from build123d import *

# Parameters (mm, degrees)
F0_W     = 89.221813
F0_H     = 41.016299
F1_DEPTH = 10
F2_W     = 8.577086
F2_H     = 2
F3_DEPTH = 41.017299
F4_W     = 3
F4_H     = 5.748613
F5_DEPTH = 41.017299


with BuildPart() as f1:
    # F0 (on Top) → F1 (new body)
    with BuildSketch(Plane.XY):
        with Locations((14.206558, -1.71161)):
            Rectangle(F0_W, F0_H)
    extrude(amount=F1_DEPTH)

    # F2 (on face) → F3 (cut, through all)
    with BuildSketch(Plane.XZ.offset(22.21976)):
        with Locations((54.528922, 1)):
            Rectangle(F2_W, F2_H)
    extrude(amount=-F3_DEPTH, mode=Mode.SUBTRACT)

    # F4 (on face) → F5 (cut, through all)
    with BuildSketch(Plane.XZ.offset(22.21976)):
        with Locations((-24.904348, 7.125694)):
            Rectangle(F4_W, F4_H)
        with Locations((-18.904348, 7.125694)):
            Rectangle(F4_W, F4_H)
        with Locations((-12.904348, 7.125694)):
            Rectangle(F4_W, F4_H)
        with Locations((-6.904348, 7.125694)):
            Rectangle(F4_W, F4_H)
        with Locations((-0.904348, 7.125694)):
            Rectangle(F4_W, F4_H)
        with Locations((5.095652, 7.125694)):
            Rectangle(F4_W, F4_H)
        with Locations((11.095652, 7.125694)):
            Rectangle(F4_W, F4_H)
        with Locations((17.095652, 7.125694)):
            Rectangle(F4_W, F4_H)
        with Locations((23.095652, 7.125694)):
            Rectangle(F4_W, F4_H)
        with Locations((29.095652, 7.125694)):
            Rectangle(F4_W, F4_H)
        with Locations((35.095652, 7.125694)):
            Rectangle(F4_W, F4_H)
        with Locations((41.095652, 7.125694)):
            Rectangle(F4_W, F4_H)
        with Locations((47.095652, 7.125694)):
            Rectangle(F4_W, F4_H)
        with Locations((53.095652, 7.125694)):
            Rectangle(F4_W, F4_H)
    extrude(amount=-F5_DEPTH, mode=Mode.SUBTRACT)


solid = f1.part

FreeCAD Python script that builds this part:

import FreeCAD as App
import Part
import Sketcher
from FreeCAD import Vector


def add_polygon(sketch, points):
    """Adds a closed chain of lines whose ends are joined by coincident constraints."""
    first, n = sketch.GeometryCount, len(points)
    for a, b in zip(points, points[1:] + points[:1]):
        sketch.addGeometry(Part.LineSegment(App.Vector(*a, 0), App.Vector(*b, 0)), False)
    for i in range(n):
        sketch.addConstraint(Sketcher.Constraint("Coincident", first + i, 2, first + (i + 1) % n, 1))

doc = App.newDocument("Part")
params = doc.addObject("Spreadsheet::Sheet", "Params")
for row, (alias, value) in enumerate([
    ("pad1_length", "10 mm"),
    ("sketch2_height", "2 mm"),
    ("sketch3_width", "3 mm"),
], start=1):
    params.set(f"A{row}", alias)
    params.set(f"B{row}", "=" + value)
    params.setAlias(f"B{row}", alias)

body = doc.addObject("PartDesign::Body", "Body")

# Sketch on XY plane
sketch1 = body.newObject("Sketcher::SketchObject", "Sketch")
sketch1.AttachmentSupport = (doc.getObject("XY_Plane"), [""])
sketch1.MapMode = "FlatFace"
add_polygon(sketch1, [(-30, 19), (-30, -22), (59, -22), (59, 19)])  # lines 0-3
sketch1.addConstraint(Sketcher.Constraint("Vertical", 0))
sketch1.addConstraint(Sketcher.Constraint("Horizontal", 1))
sketch1.addConstraint(Sketcher.Constraint("Vertical", 2))
sketch1.addConstraint(Sketcher.Constraint("Horizontal", 3))
sketch1.addConstraint(Sketcher.Constraint("DistanceY", 0, 2, 0, 1, 41.016299))
sketch1.addConstraint(Sketcher.Constraint("DistanceX", 1, 1, 1, 2, 89.221813))
sketch1.addConstraint(Sketcher.Constraint("DistanceX", 0, 2, -1, 1, 30.404349))
sketch1.addConstraint(Sketcher.Constraint("DistanceY", 0, 2, -1, 1, 22.219759))
pad1 = body.newObject("PartDesign::Pad", "Pad")
pad1.Profile = sketch1
pad1.setExpression("Length", "Params.pad1_length")

# Sketch on XZ plane
sketch2 = body.newObject("Sketcher::SketchObject", "Sketch001")
sketch2.AttachmentSupport = (doc.getObject("XZ_Plane"), [""])
sketch2.MapMode = "FlatFace"
sketch2.AttachmentOffset = App.Placement(Vector(0, 0, 22.21976), App.Rotation())
add_polygon(sketch2, [(50.2, 2), (50.2, 0), (58.8, 0), (58.8, 2)])  # lines 0-3
sketch2.addConstraint(Sketcher.Constraint("Vertical", 0))
sketch2.addConstraint(Sketcher.Constraint("Horizontal", 1))
sketch2.addConstraint(Sketcher.Constraint("Vertical", 2))
sketch2.addConstraint(Sketcher.Constraint("Horizontal", 3))
sketch2.addConstraint(Sketcher.Constraint("PointOnObject", 0, 2, -1))
sketch2.addConstraint(Sketcher.Constraint("DistanceY", 0, 2, 0, 1, 2.0))
sketch2.addConstraint(Sketcher.Constraint("DistanceX", 1, 1, 1, 2, 8.577086))
sketch2.addConstraint(Sketcher.Constraint("DistanceX", -1, 1, 0, 2, 50.240379))
sketch2.setExpression("Constraints[9]", "Params.sketch2_height")
pocket1 = body.newObject("PartDesign::Pocket", "Pocket")
pocket1.Profile = sketch2
pocket1.Type = "ThroughAll"

# Sketch on XZ plane
sketch3 = body.newObject("Sketcher::SketchObject", "Sketch002")
sketch3.AttachmentSupport = (doc.getObject("XZ_Plane"), [""])
sketch3.MapMode = "FlatFace"
sketch3.AttachmentOffset = App.Placement(Vector(0, 0, 22.21976), App.Rotation())
add_polygon(sketch3, [(-26.4, 10), (-26.4, 4.3), (-23.4, 4.3), (-23.4, 10)])  # lines 0-3
add_polygon(sketch3, [(-20.4, 10), (-20.4, 4.3), (-17.4, 4.3), (-17.4, 10)])  # lines 4-7
add_polygon(sketch3, [(-14.4, 10), (-14.4, 4.3), (-11.4, 4.3), (-11.4, 10)])  # lines 8-11
add_polygon(sketch3, [(-8.4, 10), (-8.4, 4.3), (-5.4, 4.3), (-5.4, 10)])  # lines 12-15
add_polygon(sketch3, [(-2.4, 10), (-2.4, 4.3), (0.6, 4.3), (0.6, 10)])  # lines 16-19
add_polygon(sketch3, [(3.6, 10), (3.6, 4.3), (6.6, 4.3), (6.6, 10)])  # lines 20-23
add_polygon(sketch3, [(9.6, 10), (9.6, 4.3), (12.6, 4.3), (12.6, 10)])  # lines 24-27
add_polygon(sketch3, [(15.6, 10), (15.6, 4.3), (18.6, 4.3), (18.6, 10)])  # lines 28-31
add_polygon(sketch3, [(21.6, 10), (21.6, 4.3), (24.6, 4.3), (24.6, 10)])  # lines 32-35
add_polygon(sketch3, [(27.6, 10), (27.6, 4.3), (30.6, 4.3), (30.6, 10)])  # lines 36-39
add_polygon(sketch3, [(33.6, 10), (33.6, 4.3), (36.6, 4.3), (36.6, 10)])  # lines 40-43
add_polygon(sketch3, [(39.6, 10), (39.6, 4.3), (42.6, 4.3), (42.6, 10)])  # lines 44-47
add_polygon(sketch3, [(45.6, 10), (45.6, 4.3), (48.6, 4.3), (48.6, 10)])  # lines 48-51
add_polygon(sketch3, [(51.6, 10), (51.6, 4.3), (54.6, 4.3), (54.6, 10)])  # lines 52-55
sketch3.addConstraint(Sketcher.Constraint("Vertical", 0))
sketch3.addConstraint(Sketcher.Constraint("Horizontal", 1))
sketch3.addConstraint(Sketcher.Constraint("Vertical", 2))
sketch3.addConstraint(Sketcher.Constraint("Horizontal", 3))
sketch3.addConstraint(Sketcher.Constraint("Vertical", 4))
sketch3.addConstraint(Sketcher.Constraint("Horizontal", 5))
sketch3.addConstraint(Sketcher.Constraint("Vertical", 6))
sketch3.addConstraint(Sketcher.Constraint("Horizontal", 7))
sketch3.addConstraint(Sketcher.Constraint("Vertical", 8))
sketch3.addConstraint(Sketcher.Constraint("Horizontal", 9))
sketch3.addConstraint(Sketcher.Constraint("Vertical", 10))
sketch3.addConstraint(Sketcher.Constraint("Horizontal", 11))
sketch3.addConstraint(Sketcher.Constraint("Vertical", 12))
sketch3.addConstraint(Sketcher.Constraint("Horizontal", 13))
sketch3.addConstraint(Sketcher.Constraint("Vertical", 14))
sketch3.addConstraint(Sketcher.Constraint("Horizontal", 15))
sketch3.addConstraint(Sketcher.Constraint("Vertical", 16))
sketch3.addConstraint(Sketcher.Constraint("Horizontal", 17))
sketch3.addConstraint(Sketcher.Constraint("Vertical", 18))
sketch3.addConstraint(Sketcher.Constraint("Horizontal", 19))
sketch3.addConstraint(Sketcher.Constraint("Vertical", 20))
sketch3.addConstraint(Sketcher.Constraint("Horizontal", 21))
sketch3.addConstraint(Sketcher.Constraint("Vertical", 22))
sketch3.addConstraint(Sketcher.Constraint("Horizontal", 23))
sketch3.addConstraint(Sketcher.Constraint("Vertical", 24))
sketch3.addConstraint(Sketcher.Constraint("Horizontal", 25))
sketch3.addConstraint(Sketcher.Constraint("Vertical", 26))
sketch3.addConstraint(Sketcher.Constraint("Horizontal", 27))
sketch3.addConstraint(Sketcher.Constraint("Vertical", 28))
sketch3.addConstraint(Sketcher.Constraint("Horizontal", 29))
sketch3.addConstraint(Sketcher.Constraint("Vertical", 30))
sketch3.addConstraint(Sketcher.Constraint("Horizontal", 31))
sketch3.addConstraint(Sketcher.Constraint("Vertical", 32))
sketch3.addConstraint(Sketcher.Constraint("Horizontal", 33))
sketch3.addConstraint(Sketcher.Constraint("Vertical", 34))
sketch3.addConstraint(Sketcher.Constraint("Horizontal", 35))
sketch3.addConstraint(Sketcher.Constraint("Vertical", 36))
sketch3.addConstraint(Sketcher.Constraint("Horizontal", 37))
sketch3.addConstraint(Sketcher.Constraint("Vertical", 38))
sketch3.addConstraint(Sketcher.Constraint("Horizontal", 39))
sketch3.addConstraint(Sketcher.Constraint("Vertical", 40))
sketch3.addConstraint(Sketcher.Constraint("Horizontal", 41))
sketch3.addConstraint(Sketcher.Constraint("Vertical", 42))
sketch3.addConstraint(Sketcher.Constraint("Horizontal", 43))
sketch3.addConstraint(Sketcher.Constraint("Vertical", 44))
sketch3.addConstraint(Sketcher.Constraint("Horizontal", 45))
sketch3.addConstraint(Sketcher.Constraint("Vertical", 46))
sketch3.addConstraint(Sketcher.Constraint("Horizontal", 47))
sketch3.addConstraint(Sketcher.Constraint("Vertical", 48))
sketch3.addConstraint(Sketcher.Constraint("Horizontal", 49))
sketch3.addConstraint(Sketcher.Constraint("Vertical", 50))
sketch3.addConstraint(Sketcher.Constraint("Horizontal", 51))
sketch3.addConstraint(Sketcher.Constraint("Vertical", 52))
sketch3.addConstraint(Sketcher.Constraint("Horizontal", 53))
sketch3.addConstraint(Sketcher.Constraint("Vertical", 54))
sketch3.addConstraint(Sketcher.Constraint("Horizontal", 55))
sketch3.addConstraint(Sketcher.Constraint("Horizontal", 1, 2, 4, 2))
sketch3.addConstraint(Sketcher.Constraint("Horizontal", 3, 2, 6, 2))
sketch3.addConstraint(Sketcher.Constraint("Horizontal", 5, 2, 8, 2))
sketch3.addConstraint(Sketcher.Constraint("Horizontal", 7, 2, 10, 2))
sketch3.addConstraint(Sketcher.Constraint("Horizontal", 9, 2, 12, 2))
sketch3.addConstraint(Sketcher.Constraint("Horizontal", 11, 2, 14, 2))
sketch3.addConstraint(Sketcher.Constraint("Horizontal", 13, 2, 16, 2))
sketch3.addConstraint(Sketcher.Constraint("Horizontal", 15, 2, 18, 2))
sketch3.addConstraint(Sketcher.Constraint("Horizontal", 17, 2, 20, 2))
sketch3.addConstraint(Sketcher.Constraint("Horizontal", 19, 2, 22, 2))
sketch3.addConstraint(Sketcher.Constraint("Horizontal", 21, 2, 24, 2))
sketch3.addConstraint(Sketcher.Constraint("Horizontal", 23, 2, 26, 2))
sketch3.addConstraint(Sketcher.Constraint("Horizontal", 25, 2, 28, 2))
sketch3.addConstraint(Sketcher.Constraint("Horizontal", 27, 2, 30, 2))
sketch3.addConstraint(Sketcher.Constraint("Horizontal", 29, 2, 32, 2))
sketch3.addConstraint(Sketcher.Constraint("Horizontal", 31, 2, 34, 2))
sketch3.addConstraint(Sketcher.Constraint("Horizontal", 33, 2, 36, 2))
sketch3.addConstraint(Sketcher.Constraint("Horizontal", 35, 2, 38, 2))
sketch3.addConstraint(Sketcher.Constraint("Horizontal", 37, 2, 40, 2))
sketch3.addConstraint(Sketcher.Constraint("Horizontal", 39, 2, 42, 2))
sketch3.addConstraint(Sketcher.Constraint("Horizontal", 41, 2, 44, 2))
sketch3.addConstraint(Sketcher.Constraint("Horizontal", 43, 2, 46, 2))
sketch3.addConstraint(Sketcher.Constraint("Horizontal", 45, 2, 48, 2))
sketch3.addConstraint(Sketcher.Constraint("Horizontal", 47, 2, 50, 2))
sketch3.addConstraint(Sketcher.Constraint("Horizontal", 49, 2, 52, 2))
sketch3.addConstraint(Sketcher.Constraint("Horizontal", 51, 2, 54, 2))
sketch3.addConstraint(Sketcher.Constraint("Equal", 3, 5))
sketch3.addConstraint(Sketcher.Constraint("Equal", 7, 9))
sketch3.addConstraint(Sketcher.Constraint("Equal", 11, 13))
sketch3.addConstraint(Sketcher.Constraint("Equal", 15, 17))
sketch3.addConstraint(Sketcher.Constraint("Equal", 19, 21))
sketch3.addConstraint(Sketcher.Constraint("Equal", 23, 25))
sketch3.addConstraint(Sketcher.Constraint("Equal", 27, 29))
sketch3.addConstraint(Sketcher.Constraint("Equal", 31, 33))
sketch3.addConstraint(Sketcher.Constraint("Equal", 35, 37))
sketch3.addConstraint(Sketcher.Constraint("Equal", 39, 41))
sketch3.addConstraint(Sketcher.Constraint("Equal", 43, 45))
sketch3.addConstraint(Sketcher.Constraint("Equal", 47, 49))
sketch3.addConstraint(Sketcher.Constraint("Equal", 51, 53))
sketch3.addConstraint(Sketcher.Constraint("DistanceX", 1, 1, 1, 2, 3.0))
sketch3.addConstraint(Sketcher.Constraint("DistanceY", -1, 1, 2, 2, 10.000001))
sketch3.addConstraint(Sketcher.Constraint("DistanceX", 1, 2, 4, 2, 3.0))
sketch3.addConstraint(Sketcher.Constraint("DistanceX", 5, 2, 8, 2, 3.0))
sketch3.addConstraint(Sketcher.Constraint("DistanceX", 9, 2, 12, 2, 3.0))
sketch3.addConstraint(Sketcher.Constraint("DistanceX", 13, 2, 16, 2, 3.0))
sketch3.addConstraint(Sketcher.Constraint("DistanceX", 17, 2, 20, 2, 3.0))
sketch3.addConstraint(Sketcher.Constraint("DistanceX", 21, 2, 24, 2, 3.0))
sketch3.addConstraint(Sketcher.Constraint("DistanceX", 25, 2, 28, 2, 3.0))
sketch3.addConstraint(Sketcher.Constraint("DistanceX", 29, 2, 32, 2, 3.0))
sketch3.addConstraint(Sketcher.Constraint("DistanceX", 33, 2, 36, 2, 3.0))
sketch3.addConstraint(Sketcher.Constraint("DistanceX", 37, 2, 40, 2, 3.0))
sketch3.addConstraint(Sketcher.Constraint("DistanceX", 41, 2, 44, 2, 3.0))
sketch3.addConstraint(Sketcher.Constraint("DistanceX", 45, 2, 48, 2, 3.0))
sketch3.addConstraint(Sketcher.Constraint("DistanceX", 49, 2, 52, 2, 3.0))
sketch3.addConstraint(Sketcher.Constraint("DistanceY", 0, 2, 0, 1, 5.748613))
sketch3.addConstraint(Sketcher.Constraint("DistanceX", 16, 2, -1, 1, 2.404348))
sketch3.setExpression("Constraints[151]", "Params.sketch3_width")
pocket2 = body.newObject("PartDesign::Pocket", "Pocket001")
pocket2.Profile = sketch3
pocket2.Type = "ThroughAll"

doc.recompute()
